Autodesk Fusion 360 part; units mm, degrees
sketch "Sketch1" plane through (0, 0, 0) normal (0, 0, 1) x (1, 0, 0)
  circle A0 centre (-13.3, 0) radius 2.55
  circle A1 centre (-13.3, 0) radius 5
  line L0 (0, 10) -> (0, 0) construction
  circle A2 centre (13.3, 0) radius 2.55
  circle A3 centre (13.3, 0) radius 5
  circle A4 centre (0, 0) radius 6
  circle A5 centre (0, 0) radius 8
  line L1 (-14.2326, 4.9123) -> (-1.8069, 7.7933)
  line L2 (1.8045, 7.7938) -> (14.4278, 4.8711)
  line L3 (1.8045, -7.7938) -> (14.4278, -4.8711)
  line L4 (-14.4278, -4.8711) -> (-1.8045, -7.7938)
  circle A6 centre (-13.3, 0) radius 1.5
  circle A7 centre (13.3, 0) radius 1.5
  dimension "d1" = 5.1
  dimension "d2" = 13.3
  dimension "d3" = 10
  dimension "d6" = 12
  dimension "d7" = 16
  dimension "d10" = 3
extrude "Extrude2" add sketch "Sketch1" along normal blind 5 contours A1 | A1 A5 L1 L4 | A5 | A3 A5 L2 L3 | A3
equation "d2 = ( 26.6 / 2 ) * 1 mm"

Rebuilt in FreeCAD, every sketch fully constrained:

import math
import FreeCAD as App
import Part
import Sketcher

doc = App.newDocument("Part")
params = doc.addObject("Spreadsheet::Sheet", "Params")
for row, (alias, value) in enumerate([
    ("sketch1_diameter", "12 mm"),
    ("sketch1_radius", "5 mm"),
    ("sketch1_radius2", "8 mm"),
    ("sketch1_radius3", "5 mm"),
    ("sketch1_radius4", "8 mm"),
    ("pad1_length", "5 mm"),
], start=1):
    params.set(f"A{row}", alias)
    params.set(f"B{row}", "=" + value)
    params.setAlias(f"B{row}", alias)

body = doc.addObject("PartDesign::Body", "Body")

sketch1 = doc.addObject("Sketcher::SketchObject", "Sketch")
body.addObject(sketch1)
sketch1.AttachmentSupport = (doc.XY_Plane, [""])
sketch1.MapMode = "FlatFace"
sketch1.addGeometry(Part.ArcOfCircle(Part.Circle(App.Vector(-13.3, 0, 0), App.Vector(0, 0, 1), 5), math.radians(100.74967), math.radians(256.96407)), False)
sketch1.addGeometry(Part.LineSegment(App.Vector(-14.4278, -4.8711, 0), App.Vector(-1.8045, -7.7938, 0)), False)
sketch1.addGeometry(Part.ArcOfCircle(Part.Circle(App.Vector(0, 0, 0), App.Vector(0, 0, 1), 8), math.radians(-103.036005), math.radians(-76.963995)), False)
sketch1.addGeometry(Part.LineSegment(App.Vector(1.8045, -7.7938, 0), App.Vector(14.4278, -4.8711, 0)), False)
sketch1.addGeometry(Part.ArcOfCircle(Part.Circle(App.Vector(13.3, 0, 0), App.Vector(0, 0, 1), 5), math.radians(-76.96407), math.radians(76.96407)), False)
sketch1.addGeometry(Part.LineSegment(App.Vector(14.4278, 4.8711, 0), App.Vector(1.8045, 7.7938, 0)), False)
sketch1.addGeometry(Part.ArcOfCircle(Part.Circle(App.Vector(0, 0, 0), App.Vector(0, 0, 1), 8), math.radians(76.963995), math.radians(103.053559)), False)
sketch1.addGeometry(Part.LineSegment(App.Vector(-1.8069, 7.7933, 0), App.Vector(-14.2326, 4.9123, 0)), False)
sketch1.addGeometry(Part.Circle(App.Vector(-13.3, 0, 0), App.Vector(0, 0, 1), 2.55), False)
sketch1.addGeometry(Part.Circle(App.Vector(0, 0, 0), App.Vector(0, 0, 1), 6), False)
sketch1.addGeometry(Part.Circle(App.Vector(13.3, 0, 0), App.Vector(0, 0, 1), 2.55), False)
sketch1.addConstraint(Sketcher.Constraint("Coincident", 0, 2, 1, 1))
sketch1.addConstraint(Sketcher.Constraint("Coincident", 1, 2, 2, 1))
sketch1.addConstraint(Sketcher.Constraint("Coincident", 2, 2, 3, 1))
sketch1.addConstraint(Sketcher.Constraint("Coincident", 3, 2, 4, 1))
sketch1.addConstraint(Sketcher.Constraint("Coincident", 4, 2, 5, 1))
sketch1.addConstraint(Sketcher.Constraint("Coincident", 5, 2, 6, 1))
sketch1.addConstraint(Sketcher.Constraint("Coincident", 6, 2, 7, 1))
sketch1.addConstraint(Sketcher.Constraint("Coincident", 7, 2, 0, 1))
sketch1.addConstraint(Sketcher.Constraint("Coincident", 2, 3, -1, 1))
sketch1.addConstraint(Sketcher.Constraint("Coincident", 6, 3, -1, 1))
sketch1.addConstraint(Sketcher.Constraint("Coincident", 9, 3, -1, 1))
sketch1.addConstraint(Sketcher.Constraint("Coincident", 8, 3, 0, 3))
sketch1.addConstraint(Sketcher.Constraint("Coincident", 10, 3, 4, 3))
sketch1.addConstraint(Sketcher.Constraint("PointOnObject", 0, 3, -1))
sketch1.addConstraint(Sketcher.Constraint("PointOnObject", 4, 3, -1))
sketch1.addConstraint(Sketcher.Constraint("Diameter", 9, 12.0))
sketch1.addConstraint(Sketcher.Constraint("Radius", 0, 5.0))
sketch1.addConstraint(Sketcher.Constraint("Radius", 2, 8.0))
sketch1.addConstraint(Sketcher.Constraint("Radius", 4, 5.0))
sketch1.addConstraint(Sketcher.Constraint("Radius", 6, 8.0))
sketch1.addConstraint(Sketcher.Constraint("Diameter", 8, 5.1))
sketch1.addConstraint(Sketcher.Constraint("Diameter", 10, 5.1))
sketch1.addConstraint(Sketcher.Constraint("DistanceX", 0, 3, -1, 1, 13.3))
sketch1.addConstraint(Sketcher.Constraint("DistanceX", -1, 1, 4, 3, 13.3))
sketch1.addConstraint(Sketcher.Constraint("DistanceY", 3, 2, -1, 1, 4.871))
sketch1.addConstraint(Sketcher.Constraint("DistanceX", 6, 2, -1, 1, 1.807))
sketch1.addConstraint(Sketcher.Constraint("DistanceX", 1, 2, 2, 2, 3.609))
sketch1.addConstraint(Sketcher.Constraint("DistanceY", 7, 2, 6, 2, 2.881))
sketch1.addConstraint(Sketcher.Constraint("Distance", 1, 12.9572))
sketch1.addConstraint(Sketcher.Constraint("Distance", 3, 12.9572))
sketch1.addConstraint(Sketcher.Constraint("Distance", 5, 12.9572))
sketch1.addConstraint(Sketcher.Constraint("DistanceX", -1, 1, 4, 2, 14.4278))
sketch1.setExpression("Constraints[15]", "Params.sketch1_diameter")
sketch1.setExpression("Constraints[16]", "Params.sketch1_radius")
sketch1.setExpression("Constraints[17]", "Params.sketch1_radius2")
sketch1.setExpression("Constraints[18]", "Params.sketch1_radius3")
sketch1.setExpression("Constraints[19]", "Params.sketch1_radius4")
pad1 = doc.addObject("PartDesign::Pad", "Pad")
body.addObject(pad1)
pad1.Profile = sketch1
pad1.setExpression("Length", "Params.pad1_length")

doc.recompute()
